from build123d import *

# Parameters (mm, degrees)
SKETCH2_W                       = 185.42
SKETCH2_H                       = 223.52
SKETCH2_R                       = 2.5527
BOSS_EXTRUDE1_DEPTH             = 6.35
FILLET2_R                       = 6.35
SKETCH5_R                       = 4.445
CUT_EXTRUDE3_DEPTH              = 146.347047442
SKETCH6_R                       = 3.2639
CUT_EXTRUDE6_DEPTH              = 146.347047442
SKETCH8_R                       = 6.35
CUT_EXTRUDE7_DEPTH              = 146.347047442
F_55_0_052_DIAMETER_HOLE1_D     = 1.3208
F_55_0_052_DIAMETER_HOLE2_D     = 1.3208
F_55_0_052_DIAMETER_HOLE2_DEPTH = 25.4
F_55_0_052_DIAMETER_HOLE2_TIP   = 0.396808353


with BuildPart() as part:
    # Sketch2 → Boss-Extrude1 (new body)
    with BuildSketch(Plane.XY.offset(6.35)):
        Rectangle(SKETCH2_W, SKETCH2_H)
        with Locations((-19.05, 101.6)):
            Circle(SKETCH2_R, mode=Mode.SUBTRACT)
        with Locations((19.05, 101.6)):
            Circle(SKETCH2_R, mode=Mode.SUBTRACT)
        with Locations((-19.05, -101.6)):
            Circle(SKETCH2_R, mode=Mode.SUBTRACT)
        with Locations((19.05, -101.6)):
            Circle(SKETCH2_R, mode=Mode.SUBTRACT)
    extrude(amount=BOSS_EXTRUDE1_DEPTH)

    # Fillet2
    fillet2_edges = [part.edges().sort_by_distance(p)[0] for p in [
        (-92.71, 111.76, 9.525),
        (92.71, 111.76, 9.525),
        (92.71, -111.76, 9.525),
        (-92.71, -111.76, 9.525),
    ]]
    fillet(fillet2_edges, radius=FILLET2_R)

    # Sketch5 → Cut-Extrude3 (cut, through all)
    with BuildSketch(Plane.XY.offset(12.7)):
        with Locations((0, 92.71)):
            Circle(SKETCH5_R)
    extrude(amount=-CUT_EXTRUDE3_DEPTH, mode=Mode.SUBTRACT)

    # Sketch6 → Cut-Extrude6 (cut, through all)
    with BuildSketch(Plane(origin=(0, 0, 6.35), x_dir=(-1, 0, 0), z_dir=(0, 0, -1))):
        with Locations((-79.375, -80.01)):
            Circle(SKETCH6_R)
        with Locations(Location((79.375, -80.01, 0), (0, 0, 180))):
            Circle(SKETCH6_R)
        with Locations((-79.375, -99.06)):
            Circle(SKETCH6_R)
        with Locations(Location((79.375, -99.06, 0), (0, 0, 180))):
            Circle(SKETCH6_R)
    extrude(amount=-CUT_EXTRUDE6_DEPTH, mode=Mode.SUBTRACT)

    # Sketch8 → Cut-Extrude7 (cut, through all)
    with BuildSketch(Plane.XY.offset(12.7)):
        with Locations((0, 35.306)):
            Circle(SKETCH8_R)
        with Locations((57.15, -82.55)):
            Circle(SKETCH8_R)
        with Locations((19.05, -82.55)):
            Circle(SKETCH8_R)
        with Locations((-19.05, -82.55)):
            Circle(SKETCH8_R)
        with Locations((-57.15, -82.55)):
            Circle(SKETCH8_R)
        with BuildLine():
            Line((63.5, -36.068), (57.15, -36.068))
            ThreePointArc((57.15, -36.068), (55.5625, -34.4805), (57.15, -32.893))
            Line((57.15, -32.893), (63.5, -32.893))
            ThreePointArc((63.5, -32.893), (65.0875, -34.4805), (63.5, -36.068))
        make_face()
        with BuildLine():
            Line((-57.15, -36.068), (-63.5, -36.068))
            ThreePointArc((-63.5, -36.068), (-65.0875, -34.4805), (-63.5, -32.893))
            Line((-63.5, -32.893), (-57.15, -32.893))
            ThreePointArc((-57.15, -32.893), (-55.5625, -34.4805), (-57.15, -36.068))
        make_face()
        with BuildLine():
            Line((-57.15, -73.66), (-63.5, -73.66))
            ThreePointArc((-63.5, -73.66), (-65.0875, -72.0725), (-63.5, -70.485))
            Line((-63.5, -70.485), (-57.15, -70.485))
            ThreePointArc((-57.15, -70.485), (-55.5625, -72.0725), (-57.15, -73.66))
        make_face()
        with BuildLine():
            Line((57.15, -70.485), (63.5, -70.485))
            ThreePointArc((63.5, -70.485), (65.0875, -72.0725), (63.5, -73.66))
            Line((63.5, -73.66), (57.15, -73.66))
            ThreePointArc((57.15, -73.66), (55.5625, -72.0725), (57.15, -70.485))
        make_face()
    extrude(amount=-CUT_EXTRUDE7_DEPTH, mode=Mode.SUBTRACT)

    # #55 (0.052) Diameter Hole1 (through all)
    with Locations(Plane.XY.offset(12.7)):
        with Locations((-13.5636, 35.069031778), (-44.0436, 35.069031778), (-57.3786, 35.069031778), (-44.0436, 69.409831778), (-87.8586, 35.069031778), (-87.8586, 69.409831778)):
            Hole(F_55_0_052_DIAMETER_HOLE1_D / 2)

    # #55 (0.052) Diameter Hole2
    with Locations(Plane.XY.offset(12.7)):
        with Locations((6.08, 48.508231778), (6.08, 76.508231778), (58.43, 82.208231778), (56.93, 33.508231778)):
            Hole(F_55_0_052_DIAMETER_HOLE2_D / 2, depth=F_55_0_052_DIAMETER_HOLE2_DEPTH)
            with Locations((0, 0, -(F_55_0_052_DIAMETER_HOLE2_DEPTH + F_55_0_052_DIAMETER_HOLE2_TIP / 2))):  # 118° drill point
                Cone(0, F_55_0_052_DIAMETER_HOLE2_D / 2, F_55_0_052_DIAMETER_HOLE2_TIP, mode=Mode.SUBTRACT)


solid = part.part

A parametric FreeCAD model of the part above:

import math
import FreeCAD as App
import Part
import Sketcher

V = App.Vector
Q = App.Units.Quantity


def edges_at(feature, points):
    """Names of the edges that pass closest to the given points."""
    edges = feature.Shape.Edges
    near = lambda p: min(range(len(edges)), key=lambda i: edges[i].distToShape(Part.Vertex(*p))[0])
    return sorted({f"Edge{near(p) + 1}" for p in points})

doc = App.newDocument("Part")
body = doc.addObject("PartDesign::Body", "Body")

sketch1 = body.newObject("Sketcher::SketchObject", "Sketch")
sketch1.AttachmentSupport = (doc.getObject("XY_Plane"), [""])
sketch1.MapMode = "FlatFace"
sketch1.AttachmentOffset = App.Placement(V(0, 0, 0.25 * 25.4), App.Rotation())
sketch1.addGeometry([
    Part.LineSegment(V(-92.7, 111.8, 0), V(-92.7, -111.8, 0)),
    Part.LineSegment(V(-92.7, -111.8, 0), V(92.7, -111.8, 0)),
    Part.LineSegment(V(92.7, -111.8, 0), V(92.7, 111.8, 0)),
    Part.LineSegment(V(92.7, 111.8, 0), V(-92.7, 111.8, 0)),
    Part.Circle(V(-19.1, -101.6, 0), V(0, 0, 1), 2.6),
    Part.Circle(V(19.1, -101.6, 0), V(0, 0, 1), 2.6),
    Part.Circle(V(-19.1, 101.6, 0), V(0, 0, 1), 2.6),
    Part.Circle(V(19.1, 101.6, 0), V(0, 0, 1), 2.6),
], False)
sketch1.addConstraint([
    Sketcher.Constraint("Coincident", 0, 2, 1, 1),
    Sketcher.Constraint("Coincident", 1, 2, 2, 1),
    Sketcher.Constraint("Coincident", 2, 2, 3, 1),
    Sketcher.Constraint("Coincident", 3, 2, 0, 1),
    Sketcher.Constraint("Vertical", 0),
    Sketcher.Constraint("Horizontal", 1),
    Sketcher.Constraint("Vertical", 2),
    Sketcher.Constraint("Horizontal", 3),
    Sketcher.Constraint("Equal", 4, 5),
    Sketcher.Constraint("Equal", 5, 6),
    Sketcher.Constraint("Equal", 6, 7),
    Sketcher.Constraint("Symmetric", 5, 3, 6, 3, -1, 1),
    Sketcher.Constraint("Symmetric", 4, 3, 7, 3, -1, 1),
    Sketcher.Constraint("Symmetric", 0, 2, 2, 2, -1, 1),
    Sketcher.Constraint("Symmetric", 4, 3, 5, 3, -2),
    Sketcher.Constraint("Diameter", 4, Q("0.201 in")),
    Sketcher.Constraint("DistanceX", 1, 1, 1, 2, Q("7.3 in")),
    Sketcher.Constraint("DistanceY", 0, 2, 0, 1, Q("8.8 in")),
    Sketcher.Constraint("DistanceY", 4, 3, -1, 1, Q("4 in")),
    Sketcher.Constraint("DistanceX", 4, 3, 5, 3, Q("1.5 in")),
])
pad1 = body.newObject("PartDesign::Pad", "Pad")
pad1.Profile = sketch1
pad1.Length = Q("0.25 in")
doc.recompute()

fillet = body.newObject("PartDesign::Fillet", "Fillet")
fillet.Base = (pad1, edges_at(pad1, [
    (-92.71, 111.76, 9.525),
    (92.71, 111.76, 9.525),
    (92.71, -111.76, 9.525),
    (-92.71, -111.76, 9.525),
]))
fillet.Radius = Q("0.25 in")

sketch2 = body.newObject("Sketcher::SketchObject", "Sketch001")
sketch2.AttachmentSupport = (doc.getObject("XY_Plane"), [""])
sketch2.MapMode = "FlatFace"
sketch2.AttachmentOffset = App.Placement(V(0, 0, 0.5 * 25.4), App.Rotation())
sketch2.addGeometry(Part.Circle(V(0, 92.7, 0), V(0, 0, 1), 4.4), False)
sketch2.addConstraint([
    Sketcher.Constraint("PointOnObject", 0, 3, -2),
    Sketcher.Constraint("Diameter", 0, Q("0.35 in")),
    Sketcher.Constraint("DistanceY", -1, 1, 0, 3, Q("3.65 in")),
])
pocket1 = body.newObject("PartDesign::Pocket", "Pocket")
pocket1.Profile = sketch2
pocket1.Type = "ThroughAll"

sketch3 = body.newObject("Sketcher::SketchObject", "Sketch002")
sketch3.AttachmentSupport = (doc.getObject("XY_Plane"), [""])
sketch3.MapMode = "FlatFace"
sketch3.AttachmentOffset = App.Placement(V(0, 0, 0.25 * 25.4), App.Rotation())
sketch3.addGeometry([
    Part.Circle(V(79.4, -80, 0), V(0, 0, 1), 3.3),
    Part.Circle(V(-79.4, -80, 0), V(0, 0, 1), 3.3),
    Part.Circle(V(79.4, -99.1, 0), V(0, 0, 1), 3.3),
    Part.Circle(V(-79.4, -99.1, 0), V(0, 0, 1), 3.3),
], False)
sketch3.addConstraint([
    Sketcher.Constraint("Equal", 0, 1),
    Sketcher.Constraint("Equal", 1, 2),
    Sketcher.Constraint("Equal", 2, 3),
    Sketcher.Constraint("Symmetric", 0, 3, 1, 3, -2),
    Sketcher.Constraint("Symmetric", 2, 3, 3, 3, -2),
    Sketcher.Constraint("Vertical", 0, 3, 2, 3),
    Sketcher.Constraint("Diameter", 0, Q("0.257 in")),
    Sketcher.Constraint("DistanceY", 2, 3, -1, 1, Q("3.9 in")),
    Sketcher.Constraint("DistanceY", 0, 3, -1, 1, Q("3.15 in")),
    Sketcher.Constraint("DistanceX", 1, 3, 0, 3, Q("6.25 in")),
])
pocket2 = body.newObject("PartDesign::Pocket", "Pocket001")
pocket2.Profile = sketch3
pocket2.Type = "ThroughAll"
pocket2.Reversed = True

sketch4 = body.newObject("Sketcher::SketchObject", "Sketch003")
sketch4.AttachmentSupport = (doc.getObject("XY_Plane"), [""])
sketch4.MapMode = "FlatFace"
sketch4.AttachmentOffset = App.Placement(V(0, 0, 0.5 * 25.4), App.Rotation())
sketch4.addGeometry([
    Part.Circle(V(0, 35.3, 0), V(0, 0, 1), 6.3),
    Part.Circle(V(57.1, -82.5, 0), V(0, 0, 1), 6.3),
    Part.Circle(V(19.1, -82.5, 0), V(0, 0, 1), 6.3),
    Part.Circle(V(-19.1, -82.5, 0), V(0, 0, 1), 6.3),
    Part.Circle(V(-57.1, -82.5, 0), V(0, 0, 1), 6.3),
    Part.LineSegment(V(57.1, -36.1, 0), V(63.5, -36.1, 0)),
    Part.ArcOfCircle(Part.Circle(V(63.5, -34.5, 0), V(0, 0, 1), 1.6), math.radians(-90), math.radians(90)),
    Part.LineSegment(V(63.5, -32.9, 0), V(57.1, -32.9, 0)),
    Part.ArcOfCircle(Part.Circle(V(57.1, -34.5, 0), V(0, 0, 1), 1.6), math.radians(90), math.radians(270)),
    Part.LineSegment(V(-63.5, -36.1, 0), V(-57.1, -36.1, 0)),
    Part.ArcOfCircle(Part.Circle(V(-57.1, -34.5, 0), V(0, 0, 1), 1.6), math.radians(-90), math.radians(90)),
    Part.LineSegment(V(-57.1, -32.9, 0), V(-63.5, -32.9, 0)),
    Part.ArcOfCircle(Part.Circle(V(-63.5, -34.5, 0), V(0, 0, 1), 1.6), math.radians(90), math.radians(270)),
    Part.LineSegment(V(-63.5, -73.7, 0), V(-57.1, -73.7, 0)),
    Part.ArcOfCircle(Part.Circle(V(-57.1, -72.1, 0), V(0, 0, 1), 1.6), math.radians(-90), math.radians(90)),
    Part.LineSegment(V(-57.1, -70.5, 0), V(-63.5, -70.5, 0)),
    Part.ArcOfCircle(Part.Circle(V(-63.5, -72.1, 0), V(0, 0, 1), 1.6), math.radians(90), math.radians(270)),
    Part.LineSegment(V(63.5, -70.5, 0), V(57.1, -70.5, 0)),
    Part.ArcOfCircle(Part.Circle(V(57.1, -72.1, 0), V(0, 0, 1), 1.6), math.radians(90), math.radians(270)),
    Part.LineSegment(V(57.1, -73.7, 0), V(63.5, -73.7, 0)),
    Part.ArcOfCircle(Part.Circle(V(63.5, -72.1, 0), V(0, 0, 1), 1.6), math.radians(-90), math.radians(90)),
], False)
sketch4.addConstraint([
    Sketcher.Constraint("Tangent", 5, 2, 6, 1),
    Sketcher.Constraint("Tangent", 6, 2, 7, 1),
    Sketcher.Constraint("Tangent", 7, 2, 8, 1),
    Sketcher.Constraint("Tangent", 8, 2, 5, 1),
    Sketcher.Constraint("Tangent", 9, 2, 10, 1),
    Sketcher.Constraint("Tangent", 10, 2, 11, 1),
    Sketcher.Constraint("Tangent", 11, 2, 12, 1),
    Sketcher.Constraint("Tangent", 12, 2, 9, 1),
    Sketcher.Constraint("Tangent", 13, 2, 14, 1),
    Sketcher.Constraint("Tangent", 14, 2, 15, 1),
    Sketcher.Constraint("Tangent", 15, 2, 16, 1),
    Sketcher.Constraint("Tangent", 16, 2, 13, 1),
    Sketcher.Constraint("Tangent", 17, 2, 18, 1),
    Sketcher.Constraint("Tangent", 18, 2, 19, 1),
    Sketcher.Constraint("Tangent", 19, 2, 20, 1),
    Sketcher.Constraint("Tangent", 20, 2, 17, 1),
    Sketcher.Constraint("Horizontal", 5),
    Sketcher.Constraint("Horizontal", 7),
    Sketcher.Constraint("Horizontal", 9),
    Sketcher.Constraint("Horizontal", 11),
    Sketcher.Constraint("Horizontal", 13),
    Sketcher.Constraint("Horizontal", 15),
    Sketcher.Constraint("Horizontal", 17),
    Sketcher.Constraint("Horizontal", 19),
    Sketcher.Constraint("Equal", 0, 1),
    Sketcher.Constraint("Equal", 1, 2),
    Sketcher.Constraint("Equal", 2, 3),
    Sketcher.Constraint("Equal", 3, 4),
    Sketcher.Constraint("Equal", 8, 10),
    Sketcher.Constraint("Equal", 12, 14),
    Sketcher.Constraint("Equal", 16, 18),
    Sketcher.Constraint("Symmetric", 2, 3, 3, 3, -2),
    Sketcher.Constraint("Symmetric", 1, 3, 4, 3, -2),
    Sketcher.Constraint("Symmetric", 8, 3, 10, 3, -2),
    Sketcher.Constraint("Symmetric", 14, 3, 18, 3, -2),
    Sketcher.Constraint("PointOnObject", 0, 3, -2),
    Sketcher.Constraint("Horizontal", 1, 3, 2, 3),
    Sketcher.Constraint("Vertical", 1, 3, 8, 3),
    Sketcher.Constraint("Vertical", 10, 3, 14, 3),
    Sketcher.Constraint("Vertical", 12, 3, 16, 3),
    Sketcher.Constraint("Vertical", 6, 3, 20, 3),
    Sketcher.Constraint("Equal", 7, 9),
    Sketcher.Constraint("Diameter", 0, Q("0.5 in")),
    Sketcher.Constraint("Radius", 6, Q("0.0625 in")),
    Sketcher.Constraint("DistanceX", 3, 3, 1, 3, Q("3 in")),
    Sketcher.Constraint("DistanceX", 5, 1, 5, 2, Q("0.25 in")),
    Sketcher.Constraint("DistanceX", -1, 1, 6, 3, Q("2.5 in")),
    Sketcher.Constraint("DistanceY", 13, 2, -1, 1, Q("2.9 in")),
    Sketcher.Constraint("DistanceY", -1, 1, 0, 3, Q("1.39 in")),
    Sketcher.Constraint("DistanceY", 1, 3, -1, 1, Q("3.25 in")),
    Sketcher.Constraint("DistanceY", 5, 2, -1, 1, Q("1.42 in")),
])
pocket3 = body.newObject("PartDesign::Pocket", "Pocket002")
pocket3.Profile = sketch4
pocket3.Type = "ThroughAll"

sketch5 = body.newObject("Sketcher::SketchObject", "Sketch004")
sketch5.AttachmentSupport = (doc.getObject("XY_Plane"), [""])
sketch5.MapMode = "FlatFace"
sketch5.AttachmentOffset = App.Placement(V(0, 0, 0.5 * 25.4), App.Rotation())
sketch5.addGeometry([
    Part.Circle(V(-13.6, 35.1, 0), V(0, 0, 1), 0.7),
    Part.Circle(V(-44, 35.1, 0), V(0, 0, 1), 0.7),
    Part.Circle(V(-57.4, 35.1, 0), V(0, 0, 1), 0.7),
    Part.Circle(V(-44, 69.4, 0), V(0, 0, 1), 0.7),
    Part.Circle(V(-87.9, 35.1, 0), V(0, 0, 1), 0.7),
    Part.Circle(V(-87.9, 69.4, 0), V(0, 0, 1), 0.7),
], False)
sketch5.addConstraint([
    Sketcher.Constraint("Equal", 0, 1),
    Sketcher.Constraint("Equal", 1, 2),
    Sketcher.Constraint("Equal", 2, 3),
    Sketcher.Constraint("Equal", 3, 4),
    Sketcher.Constraint("Equal", 4, 5),
    Sketcher.Constraint("Horizontal", 0, 3, 1, 3),
    Sketcher.Constraint("Horizontal", 1, 3, 2, 3),
    Sketcher.Constraint("Horizontal", 2, 3, 4, 3),
    Sketcher.Constraint("Horizontal", 3, 3, 5, 3),
    Sketcher.Constraint("Vertical", 1, 3, 3, 3),
    Sketcher.Constraint("Vertical", 4, 3, 5, 3),
    Sketcher.Constraint("Diameter", 0, Q("0.052 in")),
    Sketcher.Constraint("DistanceX", 1, 3, 0, 3, Q("1.2 in")),
    Sketcher.Constraint("DistanceX", 4, 3, 2, 3, Q("1.2 in")),
    Sketcher.Constraint("DistanceX", 0, 3, -1, 1, Q("0.534 in")),
    Sketcher.Constraint("DistanceX", 2, 3, -1, 1, Q("2.259 in")),
    Sketcher.Constraint("DistanceY", 1, 3, 3, 3, Q("1.352 in")),
    Sketcher.Constraint("DistanceY", -1, 1, 0, 3, Q("35.069032 mm")),
])
doc.recompute()
hole = body.newObject("PartDesign::Hole", "Hole")
hole.Profile = sketch5
hole.ThreadType = "None"
hole.Diameter = Q("0.052 in")
hole.DepthType = "ThroughAll"

sketch6 = body.newObject("Sketcher::SketchObject", "Sketch005")
sketch6.AttachmentSupport = (doc.getObject("XY_Plane"), [""])
sketch6.MapMode = "FlatFace"
sketch6.AttachmentOffset = App.Placement(V(0, 0, 0.5 * 25.4), App.Rotation())
sketch6.addGeometry([
    Part.Circle(V(6.1, 48.5, 0), V(0, 0, 1), 0.7),
    Part.Circle(V(6.1, 76.5, 0), V(0, 0, 1), 0.7),
    Part.Circle(V(58.4, 82.2, 0), V(0, 0, 1), 0.7),
    Part.Circle(V(56.9, 33.5, 0), V(0, 0, 1), 0.7),
], False)
sketch6.addConstraint([
    Sketcher.Constraint("Equal", 0, 1),
    Sketcher.Constraint("Equal", 1, 2),
    Sketcher.Constraint("Equal", 2, 3),
    Sketcher.Constraint("Vertical", 0, 3, 1, 3),
    Sketcher.Constraint("Diameter", 0, Q("0.052 in")),
    Sketcher.Constraint("DistanceX", -1, 1, 0, 3, Q("6.08 mm")),
    Sketcher.Constraint("DistanceX", -1, 1, 2, 3, Q("58.43 mm")),
    Sketcher.Constraint("DistanceX", -1, 1, 3, 3, Q("56.93 mm")),
    Sketcher.Constraint("DistanceY", 0, 3, 1, 3, Q("28 mm")),
    Sketcher.Constraint("DistanceY", 1, 3, 2, 3, Q("5.7 mm")),
    Sketcher.Constraint("DistanceY", 3, 3, 2, 3, Q("48.7 mm")),
    Sketcher.Constraint("DistanceY", -1, 1, 0, 3, Q("48.508232 mm")),
])
doc.recompute()
hole2 = body.newObject("PartDesign::Hole", "Hole001")
hole2.Profile = sketch6
hole2.ThreadType = "None"
hole2.Diameter = Q("0.052 in")
hole2.DepthType = "Dimension"
hole2.Depth = Q("1 in")
hole2.DrillPoint = "Angled"
hole2.DrillPointAngle = 118

doc.recompute()
